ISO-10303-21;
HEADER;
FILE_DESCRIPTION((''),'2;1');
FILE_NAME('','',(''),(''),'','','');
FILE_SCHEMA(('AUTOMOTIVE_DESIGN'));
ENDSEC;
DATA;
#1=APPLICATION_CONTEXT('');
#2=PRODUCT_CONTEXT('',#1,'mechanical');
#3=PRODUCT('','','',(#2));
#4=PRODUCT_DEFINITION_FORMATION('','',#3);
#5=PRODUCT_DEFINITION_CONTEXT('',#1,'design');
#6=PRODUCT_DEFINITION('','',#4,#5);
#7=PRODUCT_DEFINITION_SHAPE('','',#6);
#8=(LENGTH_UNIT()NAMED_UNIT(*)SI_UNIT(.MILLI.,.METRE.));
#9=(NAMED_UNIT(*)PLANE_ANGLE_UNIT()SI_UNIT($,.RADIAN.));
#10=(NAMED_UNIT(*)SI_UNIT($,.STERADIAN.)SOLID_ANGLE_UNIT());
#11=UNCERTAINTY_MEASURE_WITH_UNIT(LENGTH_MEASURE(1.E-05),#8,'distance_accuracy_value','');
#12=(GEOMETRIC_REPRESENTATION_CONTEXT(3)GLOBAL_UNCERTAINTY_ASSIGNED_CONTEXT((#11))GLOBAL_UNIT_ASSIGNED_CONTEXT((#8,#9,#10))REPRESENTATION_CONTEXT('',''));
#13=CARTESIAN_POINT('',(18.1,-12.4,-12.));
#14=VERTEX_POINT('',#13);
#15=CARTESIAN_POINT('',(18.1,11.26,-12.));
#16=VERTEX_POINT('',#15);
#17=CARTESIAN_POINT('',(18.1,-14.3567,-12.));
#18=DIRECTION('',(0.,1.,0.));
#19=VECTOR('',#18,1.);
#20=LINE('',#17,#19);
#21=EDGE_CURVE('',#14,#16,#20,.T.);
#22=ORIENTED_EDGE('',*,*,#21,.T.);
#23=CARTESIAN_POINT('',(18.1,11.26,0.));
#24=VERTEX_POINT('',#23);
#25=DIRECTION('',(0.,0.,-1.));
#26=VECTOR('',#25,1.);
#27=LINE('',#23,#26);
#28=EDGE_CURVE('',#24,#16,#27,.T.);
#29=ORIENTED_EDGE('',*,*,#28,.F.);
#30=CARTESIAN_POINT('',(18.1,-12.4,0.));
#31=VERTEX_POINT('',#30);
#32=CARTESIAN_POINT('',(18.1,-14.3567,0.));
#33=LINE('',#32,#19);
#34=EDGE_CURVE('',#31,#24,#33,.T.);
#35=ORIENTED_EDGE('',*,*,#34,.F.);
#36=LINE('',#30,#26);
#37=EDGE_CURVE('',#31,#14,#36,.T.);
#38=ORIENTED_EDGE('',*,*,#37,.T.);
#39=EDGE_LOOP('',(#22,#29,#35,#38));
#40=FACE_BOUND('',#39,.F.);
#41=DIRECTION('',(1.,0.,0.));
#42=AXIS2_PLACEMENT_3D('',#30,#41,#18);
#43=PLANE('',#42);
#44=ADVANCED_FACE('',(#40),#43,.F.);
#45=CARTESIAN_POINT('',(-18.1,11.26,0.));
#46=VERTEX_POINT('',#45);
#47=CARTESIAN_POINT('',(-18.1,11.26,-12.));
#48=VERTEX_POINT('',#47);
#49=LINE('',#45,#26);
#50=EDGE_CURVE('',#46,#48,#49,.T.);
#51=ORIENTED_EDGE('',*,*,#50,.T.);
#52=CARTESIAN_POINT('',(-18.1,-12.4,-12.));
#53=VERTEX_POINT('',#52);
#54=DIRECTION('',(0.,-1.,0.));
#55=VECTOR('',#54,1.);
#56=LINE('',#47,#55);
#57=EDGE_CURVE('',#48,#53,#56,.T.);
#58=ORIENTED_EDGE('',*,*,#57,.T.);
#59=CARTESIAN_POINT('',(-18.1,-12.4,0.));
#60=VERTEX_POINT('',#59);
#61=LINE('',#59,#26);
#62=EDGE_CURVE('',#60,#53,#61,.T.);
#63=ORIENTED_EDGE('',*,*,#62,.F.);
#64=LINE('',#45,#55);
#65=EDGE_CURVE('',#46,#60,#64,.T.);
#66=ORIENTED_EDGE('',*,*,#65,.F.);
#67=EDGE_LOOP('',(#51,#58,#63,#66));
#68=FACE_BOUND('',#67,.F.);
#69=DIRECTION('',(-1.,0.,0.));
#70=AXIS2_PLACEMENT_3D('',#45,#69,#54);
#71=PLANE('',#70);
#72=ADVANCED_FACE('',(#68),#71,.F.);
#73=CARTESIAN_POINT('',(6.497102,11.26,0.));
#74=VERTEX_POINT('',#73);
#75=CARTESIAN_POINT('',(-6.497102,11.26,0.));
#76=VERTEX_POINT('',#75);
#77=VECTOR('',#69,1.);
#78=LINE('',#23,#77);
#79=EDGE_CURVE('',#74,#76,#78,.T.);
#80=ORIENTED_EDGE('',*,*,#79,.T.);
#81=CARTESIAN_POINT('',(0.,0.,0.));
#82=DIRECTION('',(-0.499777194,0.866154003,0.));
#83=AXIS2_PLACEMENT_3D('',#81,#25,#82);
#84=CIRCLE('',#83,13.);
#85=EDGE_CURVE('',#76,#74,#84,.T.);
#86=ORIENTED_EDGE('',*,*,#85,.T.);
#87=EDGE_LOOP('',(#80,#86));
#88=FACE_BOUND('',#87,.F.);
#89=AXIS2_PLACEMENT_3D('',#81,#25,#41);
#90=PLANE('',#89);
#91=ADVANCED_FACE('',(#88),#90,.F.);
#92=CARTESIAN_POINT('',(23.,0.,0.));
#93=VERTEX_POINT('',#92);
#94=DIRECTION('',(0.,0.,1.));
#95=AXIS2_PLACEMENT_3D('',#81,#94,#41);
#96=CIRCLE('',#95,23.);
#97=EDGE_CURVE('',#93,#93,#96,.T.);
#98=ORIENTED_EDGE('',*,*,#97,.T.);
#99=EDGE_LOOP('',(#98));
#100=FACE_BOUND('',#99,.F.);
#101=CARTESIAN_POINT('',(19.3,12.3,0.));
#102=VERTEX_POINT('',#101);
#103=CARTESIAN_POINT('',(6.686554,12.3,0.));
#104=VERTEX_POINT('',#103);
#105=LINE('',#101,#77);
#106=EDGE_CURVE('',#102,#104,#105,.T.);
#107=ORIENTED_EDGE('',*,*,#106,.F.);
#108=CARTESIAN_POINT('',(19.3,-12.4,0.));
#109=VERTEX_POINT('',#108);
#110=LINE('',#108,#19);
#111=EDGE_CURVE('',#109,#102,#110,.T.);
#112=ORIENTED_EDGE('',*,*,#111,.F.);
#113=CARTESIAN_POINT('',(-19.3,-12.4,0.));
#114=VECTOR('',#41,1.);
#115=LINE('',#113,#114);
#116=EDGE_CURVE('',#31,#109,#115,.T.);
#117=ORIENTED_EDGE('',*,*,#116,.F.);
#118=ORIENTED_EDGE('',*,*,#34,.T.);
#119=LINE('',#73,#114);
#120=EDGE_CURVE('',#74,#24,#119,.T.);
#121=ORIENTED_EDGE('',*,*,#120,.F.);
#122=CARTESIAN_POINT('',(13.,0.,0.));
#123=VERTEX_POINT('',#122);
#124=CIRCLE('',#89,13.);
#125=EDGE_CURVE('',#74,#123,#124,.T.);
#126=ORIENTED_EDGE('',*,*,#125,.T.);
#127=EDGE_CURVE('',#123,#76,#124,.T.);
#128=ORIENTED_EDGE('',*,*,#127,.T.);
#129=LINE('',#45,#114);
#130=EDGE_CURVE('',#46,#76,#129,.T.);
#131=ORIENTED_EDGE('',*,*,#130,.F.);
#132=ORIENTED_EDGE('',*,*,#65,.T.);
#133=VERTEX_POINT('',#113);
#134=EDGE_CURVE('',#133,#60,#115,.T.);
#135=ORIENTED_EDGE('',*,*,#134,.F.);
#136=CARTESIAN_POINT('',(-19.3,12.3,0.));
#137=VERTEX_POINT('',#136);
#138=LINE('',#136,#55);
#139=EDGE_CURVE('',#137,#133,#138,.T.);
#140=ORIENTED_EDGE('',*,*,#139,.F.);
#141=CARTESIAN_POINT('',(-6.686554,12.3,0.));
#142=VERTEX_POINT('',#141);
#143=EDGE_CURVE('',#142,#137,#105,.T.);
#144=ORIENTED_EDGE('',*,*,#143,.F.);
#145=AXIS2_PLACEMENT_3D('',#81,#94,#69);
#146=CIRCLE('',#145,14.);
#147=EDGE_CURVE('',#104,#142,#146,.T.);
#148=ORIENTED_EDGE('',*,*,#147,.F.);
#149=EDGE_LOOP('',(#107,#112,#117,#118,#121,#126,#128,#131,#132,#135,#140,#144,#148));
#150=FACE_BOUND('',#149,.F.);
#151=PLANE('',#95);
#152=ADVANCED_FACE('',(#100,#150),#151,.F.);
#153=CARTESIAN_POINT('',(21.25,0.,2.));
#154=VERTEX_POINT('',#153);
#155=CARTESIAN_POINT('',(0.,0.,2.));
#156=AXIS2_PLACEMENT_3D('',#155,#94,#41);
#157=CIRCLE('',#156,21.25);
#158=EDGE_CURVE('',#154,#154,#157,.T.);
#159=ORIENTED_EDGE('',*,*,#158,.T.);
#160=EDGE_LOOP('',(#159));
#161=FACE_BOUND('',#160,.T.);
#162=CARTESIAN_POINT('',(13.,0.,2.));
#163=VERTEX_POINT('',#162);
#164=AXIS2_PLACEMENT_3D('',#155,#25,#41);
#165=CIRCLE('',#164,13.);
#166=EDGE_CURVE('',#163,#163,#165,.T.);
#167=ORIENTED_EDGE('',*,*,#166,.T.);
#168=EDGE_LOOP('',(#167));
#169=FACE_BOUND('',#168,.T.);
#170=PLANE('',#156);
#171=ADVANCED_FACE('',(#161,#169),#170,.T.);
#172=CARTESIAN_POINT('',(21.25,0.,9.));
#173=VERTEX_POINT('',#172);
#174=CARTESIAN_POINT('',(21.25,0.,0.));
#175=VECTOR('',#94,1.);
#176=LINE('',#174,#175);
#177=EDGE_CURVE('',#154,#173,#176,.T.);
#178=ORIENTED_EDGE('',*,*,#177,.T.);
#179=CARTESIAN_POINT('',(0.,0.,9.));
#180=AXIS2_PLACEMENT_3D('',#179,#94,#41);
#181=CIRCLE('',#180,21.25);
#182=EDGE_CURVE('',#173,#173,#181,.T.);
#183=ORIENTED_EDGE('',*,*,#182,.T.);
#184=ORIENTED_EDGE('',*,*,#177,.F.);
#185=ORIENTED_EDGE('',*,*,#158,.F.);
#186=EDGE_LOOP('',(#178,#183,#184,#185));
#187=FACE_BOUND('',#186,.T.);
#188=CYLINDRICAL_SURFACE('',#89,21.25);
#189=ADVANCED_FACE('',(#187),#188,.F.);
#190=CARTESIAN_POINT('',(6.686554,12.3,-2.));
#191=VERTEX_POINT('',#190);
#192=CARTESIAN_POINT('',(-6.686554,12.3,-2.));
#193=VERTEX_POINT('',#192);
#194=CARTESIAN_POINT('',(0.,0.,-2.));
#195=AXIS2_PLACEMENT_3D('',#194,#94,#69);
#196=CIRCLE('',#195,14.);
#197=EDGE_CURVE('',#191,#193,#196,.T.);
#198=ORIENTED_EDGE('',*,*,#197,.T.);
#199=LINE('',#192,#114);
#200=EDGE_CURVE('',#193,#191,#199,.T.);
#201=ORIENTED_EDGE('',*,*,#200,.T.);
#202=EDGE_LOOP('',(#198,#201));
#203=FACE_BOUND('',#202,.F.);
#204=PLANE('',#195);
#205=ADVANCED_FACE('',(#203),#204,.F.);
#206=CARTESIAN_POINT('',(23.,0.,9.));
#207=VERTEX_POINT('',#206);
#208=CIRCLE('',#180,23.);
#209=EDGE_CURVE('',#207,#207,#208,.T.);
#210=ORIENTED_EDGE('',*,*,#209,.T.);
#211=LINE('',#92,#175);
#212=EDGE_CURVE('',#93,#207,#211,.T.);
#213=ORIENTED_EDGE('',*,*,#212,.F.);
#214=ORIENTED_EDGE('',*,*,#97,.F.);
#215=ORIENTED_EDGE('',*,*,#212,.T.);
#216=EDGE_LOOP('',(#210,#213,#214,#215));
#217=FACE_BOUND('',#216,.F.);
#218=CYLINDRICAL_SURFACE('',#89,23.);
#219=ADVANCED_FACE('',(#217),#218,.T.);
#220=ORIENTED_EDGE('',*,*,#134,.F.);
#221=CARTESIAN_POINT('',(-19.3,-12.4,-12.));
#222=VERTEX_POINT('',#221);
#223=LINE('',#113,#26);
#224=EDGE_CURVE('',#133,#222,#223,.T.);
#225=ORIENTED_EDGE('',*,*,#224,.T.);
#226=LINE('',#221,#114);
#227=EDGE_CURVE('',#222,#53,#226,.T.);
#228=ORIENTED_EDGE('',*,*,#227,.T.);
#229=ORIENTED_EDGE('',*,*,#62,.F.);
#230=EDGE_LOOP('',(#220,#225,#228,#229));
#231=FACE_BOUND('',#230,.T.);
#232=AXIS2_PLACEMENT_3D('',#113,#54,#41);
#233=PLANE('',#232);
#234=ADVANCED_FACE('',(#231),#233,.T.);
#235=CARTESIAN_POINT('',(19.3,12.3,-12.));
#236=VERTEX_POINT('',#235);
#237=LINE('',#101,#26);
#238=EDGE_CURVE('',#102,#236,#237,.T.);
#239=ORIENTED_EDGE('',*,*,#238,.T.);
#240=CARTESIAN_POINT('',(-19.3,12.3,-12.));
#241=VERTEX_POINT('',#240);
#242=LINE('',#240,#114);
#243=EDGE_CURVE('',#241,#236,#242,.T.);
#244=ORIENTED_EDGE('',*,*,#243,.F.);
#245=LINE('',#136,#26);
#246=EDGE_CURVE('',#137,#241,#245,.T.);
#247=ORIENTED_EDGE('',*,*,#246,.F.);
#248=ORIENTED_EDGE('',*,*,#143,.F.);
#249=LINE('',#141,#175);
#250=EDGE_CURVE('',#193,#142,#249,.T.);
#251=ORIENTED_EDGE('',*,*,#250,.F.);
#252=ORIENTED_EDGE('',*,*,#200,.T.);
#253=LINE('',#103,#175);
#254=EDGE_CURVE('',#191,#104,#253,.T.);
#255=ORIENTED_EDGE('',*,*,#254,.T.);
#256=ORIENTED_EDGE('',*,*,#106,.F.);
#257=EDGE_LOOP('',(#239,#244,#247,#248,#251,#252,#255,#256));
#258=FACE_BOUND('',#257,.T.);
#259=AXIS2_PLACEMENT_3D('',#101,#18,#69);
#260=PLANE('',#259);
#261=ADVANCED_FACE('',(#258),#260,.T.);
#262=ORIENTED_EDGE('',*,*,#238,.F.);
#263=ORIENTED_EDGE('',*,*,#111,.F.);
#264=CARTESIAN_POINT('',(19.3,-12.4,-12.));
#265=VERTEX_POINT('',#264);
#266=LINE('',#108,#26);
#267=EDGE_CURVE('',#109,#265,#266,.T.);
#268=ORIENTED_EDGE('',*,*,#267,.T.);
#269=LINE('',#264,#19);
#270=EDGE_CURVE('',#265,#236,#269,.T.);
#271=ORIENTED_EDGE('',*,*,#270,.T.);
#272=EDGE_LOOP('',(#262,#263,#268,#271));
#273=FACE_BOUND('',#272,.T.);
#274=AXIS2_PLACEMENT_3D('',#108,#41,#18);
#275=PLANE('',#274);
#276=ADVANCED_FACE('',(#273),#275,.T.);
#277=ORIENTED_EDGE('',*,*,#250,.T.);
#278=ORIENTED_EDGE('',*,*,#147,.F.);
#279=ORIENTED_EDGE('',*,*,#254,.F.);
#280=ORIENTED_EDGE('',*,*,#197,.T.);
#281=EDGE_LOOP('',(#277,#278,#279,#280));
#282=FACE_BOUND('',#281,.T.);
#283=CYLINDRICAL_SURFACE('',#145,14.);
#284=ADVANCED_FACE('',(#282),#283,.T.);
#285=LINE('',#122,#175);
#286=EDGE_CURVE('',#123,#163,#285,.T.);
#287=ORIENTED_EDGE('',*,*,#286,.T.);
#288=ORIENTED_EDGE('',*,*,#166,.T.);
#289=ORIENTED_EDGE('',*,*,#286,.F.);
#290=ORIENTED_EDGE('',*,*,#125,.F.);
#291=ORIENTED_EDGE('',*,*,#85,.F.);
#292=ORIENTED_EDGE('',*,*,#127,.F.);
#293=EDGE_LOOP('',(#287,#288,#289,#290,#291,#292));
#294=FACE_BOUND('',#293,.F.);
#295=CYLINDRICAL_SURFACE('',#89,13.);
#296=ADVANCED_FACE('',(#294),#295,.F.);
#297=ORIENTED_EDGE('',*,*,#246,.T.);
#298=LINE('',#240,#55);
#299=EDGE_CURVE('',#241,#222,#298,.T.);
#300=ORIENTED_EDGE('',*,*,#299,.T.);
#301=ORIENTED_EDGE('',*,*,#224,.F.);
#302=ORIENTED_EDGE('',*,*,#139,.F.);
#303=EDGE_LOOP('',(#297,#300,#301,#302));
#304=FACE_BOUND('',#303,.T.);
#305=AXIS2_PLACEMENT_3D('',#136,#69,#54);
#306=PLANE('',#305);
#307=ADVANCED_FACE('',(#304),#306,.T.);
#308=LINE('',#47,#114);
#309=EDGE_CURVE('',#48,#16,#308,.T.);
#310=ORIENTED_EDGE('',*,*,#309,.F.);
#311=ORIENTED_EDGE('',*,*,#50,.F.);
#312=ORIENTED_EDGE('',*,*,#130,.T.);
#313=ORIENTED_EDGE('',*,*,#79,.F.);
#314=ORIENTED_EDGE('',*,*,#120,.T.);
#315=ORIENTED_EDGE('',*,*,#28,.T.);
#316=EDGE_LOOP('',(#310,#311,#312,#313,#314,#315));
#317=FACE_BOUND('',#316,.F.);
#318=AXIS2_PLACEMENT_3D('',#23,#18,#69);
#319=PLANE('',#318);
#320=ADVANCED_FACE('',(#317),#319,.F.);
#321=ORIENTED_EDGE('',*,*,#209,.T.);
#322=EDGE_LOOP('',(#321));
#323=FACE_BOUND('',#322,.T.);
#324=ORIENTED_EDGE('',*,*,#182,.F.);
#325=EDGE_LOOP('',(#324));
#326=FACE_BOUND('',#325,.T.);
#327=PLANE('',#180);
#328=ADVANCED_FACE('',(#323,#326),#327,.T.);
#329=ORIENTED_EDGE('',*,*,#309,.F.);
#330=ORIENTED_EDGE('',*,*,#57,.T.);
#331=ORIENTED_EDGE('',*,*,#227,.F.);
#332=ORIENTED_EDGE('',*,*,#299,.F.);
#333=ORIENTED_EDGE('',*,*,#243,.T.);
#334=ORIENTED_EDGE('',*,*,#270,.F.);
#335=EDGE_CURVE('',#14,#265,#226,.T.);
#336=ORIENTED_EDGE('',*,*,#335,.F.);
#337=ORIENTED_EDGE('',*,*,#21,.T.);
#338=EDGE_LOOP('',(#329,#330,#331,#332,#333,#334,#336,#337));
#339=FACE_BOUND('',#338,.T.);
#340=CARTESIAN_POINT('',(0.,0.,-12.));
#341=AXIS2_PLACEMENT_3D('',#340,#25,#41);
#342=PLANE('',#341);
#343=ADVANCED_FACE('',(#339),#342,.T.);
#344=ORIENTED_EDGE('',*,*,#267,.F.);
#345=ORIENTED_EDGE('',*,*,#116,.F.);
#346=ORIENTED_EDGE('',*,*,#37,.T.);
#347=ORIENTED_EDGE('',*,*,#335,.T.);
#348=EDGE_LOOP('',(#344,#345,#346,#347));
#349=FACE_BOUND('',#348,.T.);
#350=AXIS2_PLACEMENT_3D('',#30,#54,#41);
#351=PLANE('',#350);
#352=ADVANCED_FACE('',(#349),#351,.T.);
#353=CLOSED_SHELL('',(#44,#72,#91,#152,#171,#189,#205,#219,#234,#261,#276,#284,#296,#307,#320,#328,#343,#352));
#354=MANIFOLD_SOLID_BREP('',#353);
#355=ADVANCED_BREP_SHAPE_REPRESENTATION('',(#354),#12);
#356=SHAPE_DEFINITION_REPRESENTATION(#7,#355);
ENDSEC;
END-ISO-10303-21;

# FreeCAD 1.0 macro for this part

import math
import FreeCAD as App
import Part
import Sketcher

V = App.Vector


def add_polygon(sketch, points):
    """Adds a closed chain of lines whose ends are joined by coincident constraints."""
    first, n = sketch.GeometryCount, len(points)
    for a, b in zip(points, points[1:] + points[:1]):
        sketch.addGeometry(Part.LineSegment(App.Vector(*a, 0), App.Vector(*b, 0)), False)
    for i in range(n):
        sketch.addConstraint(Sketcher.Constraint("Coincident", first + i, 2, first + (i + 1) % n, 1))

doc = App.newDocument("Part")
body = doc.addObject("PartDesign::Body", "Body")

sketch1 = body.newObject("Sketcher::SketchObject", "Sketch")
sketch1.AttachmentSupport = (doc.getObject("XY_Plane"), [""])
sketch1.MapMode = "FlatFace"
sketch1.addGeometry(Part.Circle(V(0, 0, 0), V(0, 0, 1), 21), False)
sketch1.addConstraint(Sketcher.Constraint("Coincident", 0, 3, -1, 1))
sketch1.addConstraint(Sketcher.Constraint("Diameter", 0, 42.5))
pad1 = body.newObject("PartDesign::Pad", "Pad")
pad1.Profile = sketch1
pad1.Length = 2

sketch2 = body.newObject("Sketcher::SketchObject", "Sketch001")
sketch2.AttachmentSupport = (doc.getObject("XY_Plane"), [""])
sketch2.MapMode = "FlatFace"
sketch2.addGeometry(Part.Circle(V(0, 0, 0), V(0, 0, 1), 23), False)
sketch2.addGeometry(Part.Circle(V(0, 0, 0), V(0, 0, 1), 21), False)
sketch2.addConstraint(Sketcher.Constraint("Coincident", 0, 3, -1, 1))
sketch2.addConstraint(Sketcher.Constraint("Coincident", 1, 3, -1, 1))
sketch2.addConstraint(Sketcher.Constraint("Diameter", 0, 46.0))
sketch2.addConstraint(Sketcher.Constraint("Diameter", 1, 42.5))
pad2 = body.newObject("PartDesign::Pad", "Pad001")
pad2.Profile = sketch2
pad2.Length = 9

sketch3 = body.newObject("Sketcher::SketchObject", "Sketch002")
sketch3.AttachmentSupport = (doc.getObject("XY_Plane"), [""])
sketch3.MapMode = "FlatFace"
sketch3.addGeometry(Part.Circle(V(0, 0, 0), V(0, 0, 1), 13), False)
sketch3.addConstraint(Sketcher.Constraint("Coincident", 0, 3, -1, 1))
sketch3.addConstraint(Sketcher.Constraint("Diameter", 0, 26.0))
pocket1 = body.newObject("PartDesign::Pocket", "Pocket")
pocket1.Profile = sketch3
pocket1.Length = 3
pocket1.Reversed = True

sketch4 = body.newObject("Sketcher::SketchObject", "Sketch003")
sketch4.AttachmentSupport = (doc.getObject("XY_Plane"), [""])
sketch4.MapMode = "FlatFace"
add_polygon(sketch4, [(18.1, 11.3), (-18.1, 11.3), (-18.1, -12.4), (-19.3, -12.4), (-19.3, 12.3), (19.3, 12.3), (19.3, -12.4), (18.1, -12.4)])
sketch4.addConstraint(Sketcher.Constraint("Horizontal", 0))
sketch4.addConstraint(Sketcher.Constraint("Vertical", 1))
sketch4.addConstraint(Sketcher.Constraint("Horizontal", 2))
sketch4.addConstraint(Sketcher.Constraint("Vertical", 3))
sketch4.addConstraint(Sketcher.Constraint("Horizontal", 4))
sketch4.addConstraint(Sketcher.Constraint("Vertical", 5))
sketch4.addConstraint(Sketcher.Constraint("Horizontal", 6))
sketch4.addConstraint(Sketcher.Constraint("Vertical", 7))
sketch4.addConstraint(Sketcher.Constraint("Symmetric", 2, 2, 5, 2, -2))
sketch4.addConstraint(Sketcher.Constraint("Equal", 2, 6))
sketch4.addConstraint(Sketcher.Constraint("DistanceX", 0, 2, -1, 1, 18.1))
sketch4.addConstraint(Sketcher.Constraint("DistanceY", 1, 2, -1, 1, 12.4))
sketch4.addConstraint(Sketcher.Constraint("DistanceX", 2, 2, -1, 1, 19.3))
sketch4.addConstraint(Sketcher.Constraint("DistanceY", -1, 1, 3, 2, 12.3))
sketch4.addConstraint(Sketcher.Constraint("DistanceY", -1, 1, 0, 2, 11.26))
pad3 = body.newObject("PartDesign::Pad", "Pad002")
pad3.Profile = sketch4
pad3.Length = 12
pad3.Reversed = True

sketch5 = body.newObject("Sketcher::SketchObject", "Sketch004")
sketch5.AttachmentSupport = (doc.getObject("XY_Plane"), [""])
sketch5.MapMode = "FlatFace"
sketch5.addGeometry(Part.LineSegment(V(-4.21, 12.3, 0), V(4.21, 12.3, 0)), False)
sketch5.addGeometry(Part.ArcOfCircle(Part.Circle(V(0, 0, 0), V(0, 0, 1), 13), math.radians(60.01), math.radians(71.11)), False)
sketch5.addGeometry(Part.LineSegment(V(6.5, 11.26, 0), V(7.71, 11.26, 0)), False)
sketch5.addGeometry(Part.LineSegment(V(7.71, 11.26, 0), V(7.71, 11.68, 0)), False)
sketch5.addGeometry(Part.ArcOfCircle(Part.Circle(V(0, 0, 0), V(0, 0, 1), 14), math.radians(57), math.radians(126)), False)
sketch5.addGeometry(Part.LineSegment(V(-8.32, 11.26, 0), V(-6.5, 11.26, 0)), False)
sketch5.addGeometry(Part.ArcOfCircle(Part.Circle(V(0, 0, 0), V(0, 0, 1), 13), math.radians(108.89), math.radians(119.99)), False)
sketch5.addConstraint(Sketcher.Constraint("Coincident", 0, 2, 1, 2))
sketch5.addConstraint(Sketcher.Constraint("Coincident", 1, 1, 2, 1))
sketch5.addConstraint(Sketcher.Constraint("Coincident", 2, 2, 3, 1))
sketch5.addConstraint(Sketcher.Constraint("Coincident", 3, 2, 4, 1))
sketch5.addConstraint(Sketcher.Constraint("Coincident", 4, 2, 5, 1))
sketch5.addConstraint(Sketcher.Constraint("Coincident", 5, 2, 6, 2))
sketch5.addConstraint(Sketcher.Constraint("Coincident", 6, 1, 0, 1))
sketch5.addConstraint(Sketcher.Constraint("Horizontal", 0))
sketch5.addConstraint(Sketcher.Constraint("Horizontal", 2))
sketch5.addConstraint(Sketcher.Constraint("Vertical", 3))
sketch5.addConstraint(Sketcher.Constraint("Horizontal", 5))
sketch5.addConstraint(Sketcher.Constraint("Coincident", 1, 3, -1, 1))
sketch5.addConstraint(Sketcher.Constraint("Coincident", 4, 3, -1, 1))
sketch5.addConstraint(Sketcher.Constraint("Coincident", 6, 3, -1, 1))
sketch5.addConstraint(Sketcher.Constraint("Equal", 1, 6))
sketch5.addConstraint(Sketcher.Constraint("Horizontal", 2, 2, 4, 2))
sketch5.addConstraint(Sketcher.Constraint("Radius", 1, 13.0))
sketch5.addConstraint(Sketcher.Constraint("Radius", 4, 14.0))
sketch5.addConstraint(Sketcher.Constraint("DistanceY", -1, 1, 0, 2, 12.3))
sketch5.addConstraint(Sketcher.Constraint("DistanceY", -1, 1, 1, 1, 11.26))
sketch5.addConstraint(Sketcher.Constraint("DistanceX", 2, 1, 2, 2, 1.2167))
pad4 = body.newObject("PartDesign::Pad", "Pad003")
pad4.Profile = sketch5
pad4.Length = 2
pad4.Reversed = True

doc.recompute()
